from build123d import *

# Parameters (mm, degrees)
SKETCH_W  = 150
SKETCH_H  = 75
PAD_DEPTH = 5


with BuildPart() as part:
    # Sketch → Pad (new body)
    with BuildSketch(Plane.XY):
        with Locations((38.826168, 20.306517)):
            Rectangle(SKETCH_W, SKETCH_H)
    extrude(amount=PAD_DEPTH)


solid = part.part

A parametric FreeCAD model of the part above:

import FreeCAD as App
import Part
import Sketcher
Q = App.Units.Quantity


def add_polygon(sketch, points):
    """Adds a closed chain of lines whose ends are joined by coincident constraints."""
    first, n = sketch.GeometryCount, len(points)
    for a, b in zip(points, points[1:] + points[:1]):
        sketch.addGeometry(Part.LineSegment(App.Vector(*a, 0), App.Vector(*b, 0)), False)
    for i in range(n):
        sketch.addConstraint(Sketcher.Constraint("Coincident", first + i, 2, first + (i + 1) % n, 1))

doc = App.newDocument("Part")
body = doc.addObject("PartDesign::Body", "Body")

# Sketch on XY plane
sketch1 = doc.addObject("Sketcher::SketchObject", "Sketch")
body.addObject(sketch1)
sketch1.AttachmentSupport = (doc.XY_Plane, [""])
sketch1.MapMode = "FlatFace"
add_polygon(sketch1, [(-36, 58), (-36, -17), (114, -17), (114, 58)])  # lines 0-3
sketch1.addConstraint([
    Sketcher.Constraint("Vertical", 0),
    Sketcher.Constraint("Horizontal", 1),
    Sketcher.Constraint("Vertical", 2),
    Sketcher.Constraint("Horizontal", 3),
    Sketcher.Constraint("DistanceX", 1, 1, 1, 2, Q("150 mm")),
    Sketcher.Constraint("DistanceY", 0, 2, 0, 1, Q("75 mm")),
    Sketcher.Constraint("DistanceX", 0, 2, -1, 1, Q("36.173832 mm")),
    Sketcher.Constraint("DistanceY", 0, 2, -1, 1, Q("17.193483 mm")),
])
pad1 = doc.addObject("PartDesign::Pad", "Pad")
body.addObject(pad1)
pad1.Profile = sketch1
pad1.Length = 5

doc.recompute()
